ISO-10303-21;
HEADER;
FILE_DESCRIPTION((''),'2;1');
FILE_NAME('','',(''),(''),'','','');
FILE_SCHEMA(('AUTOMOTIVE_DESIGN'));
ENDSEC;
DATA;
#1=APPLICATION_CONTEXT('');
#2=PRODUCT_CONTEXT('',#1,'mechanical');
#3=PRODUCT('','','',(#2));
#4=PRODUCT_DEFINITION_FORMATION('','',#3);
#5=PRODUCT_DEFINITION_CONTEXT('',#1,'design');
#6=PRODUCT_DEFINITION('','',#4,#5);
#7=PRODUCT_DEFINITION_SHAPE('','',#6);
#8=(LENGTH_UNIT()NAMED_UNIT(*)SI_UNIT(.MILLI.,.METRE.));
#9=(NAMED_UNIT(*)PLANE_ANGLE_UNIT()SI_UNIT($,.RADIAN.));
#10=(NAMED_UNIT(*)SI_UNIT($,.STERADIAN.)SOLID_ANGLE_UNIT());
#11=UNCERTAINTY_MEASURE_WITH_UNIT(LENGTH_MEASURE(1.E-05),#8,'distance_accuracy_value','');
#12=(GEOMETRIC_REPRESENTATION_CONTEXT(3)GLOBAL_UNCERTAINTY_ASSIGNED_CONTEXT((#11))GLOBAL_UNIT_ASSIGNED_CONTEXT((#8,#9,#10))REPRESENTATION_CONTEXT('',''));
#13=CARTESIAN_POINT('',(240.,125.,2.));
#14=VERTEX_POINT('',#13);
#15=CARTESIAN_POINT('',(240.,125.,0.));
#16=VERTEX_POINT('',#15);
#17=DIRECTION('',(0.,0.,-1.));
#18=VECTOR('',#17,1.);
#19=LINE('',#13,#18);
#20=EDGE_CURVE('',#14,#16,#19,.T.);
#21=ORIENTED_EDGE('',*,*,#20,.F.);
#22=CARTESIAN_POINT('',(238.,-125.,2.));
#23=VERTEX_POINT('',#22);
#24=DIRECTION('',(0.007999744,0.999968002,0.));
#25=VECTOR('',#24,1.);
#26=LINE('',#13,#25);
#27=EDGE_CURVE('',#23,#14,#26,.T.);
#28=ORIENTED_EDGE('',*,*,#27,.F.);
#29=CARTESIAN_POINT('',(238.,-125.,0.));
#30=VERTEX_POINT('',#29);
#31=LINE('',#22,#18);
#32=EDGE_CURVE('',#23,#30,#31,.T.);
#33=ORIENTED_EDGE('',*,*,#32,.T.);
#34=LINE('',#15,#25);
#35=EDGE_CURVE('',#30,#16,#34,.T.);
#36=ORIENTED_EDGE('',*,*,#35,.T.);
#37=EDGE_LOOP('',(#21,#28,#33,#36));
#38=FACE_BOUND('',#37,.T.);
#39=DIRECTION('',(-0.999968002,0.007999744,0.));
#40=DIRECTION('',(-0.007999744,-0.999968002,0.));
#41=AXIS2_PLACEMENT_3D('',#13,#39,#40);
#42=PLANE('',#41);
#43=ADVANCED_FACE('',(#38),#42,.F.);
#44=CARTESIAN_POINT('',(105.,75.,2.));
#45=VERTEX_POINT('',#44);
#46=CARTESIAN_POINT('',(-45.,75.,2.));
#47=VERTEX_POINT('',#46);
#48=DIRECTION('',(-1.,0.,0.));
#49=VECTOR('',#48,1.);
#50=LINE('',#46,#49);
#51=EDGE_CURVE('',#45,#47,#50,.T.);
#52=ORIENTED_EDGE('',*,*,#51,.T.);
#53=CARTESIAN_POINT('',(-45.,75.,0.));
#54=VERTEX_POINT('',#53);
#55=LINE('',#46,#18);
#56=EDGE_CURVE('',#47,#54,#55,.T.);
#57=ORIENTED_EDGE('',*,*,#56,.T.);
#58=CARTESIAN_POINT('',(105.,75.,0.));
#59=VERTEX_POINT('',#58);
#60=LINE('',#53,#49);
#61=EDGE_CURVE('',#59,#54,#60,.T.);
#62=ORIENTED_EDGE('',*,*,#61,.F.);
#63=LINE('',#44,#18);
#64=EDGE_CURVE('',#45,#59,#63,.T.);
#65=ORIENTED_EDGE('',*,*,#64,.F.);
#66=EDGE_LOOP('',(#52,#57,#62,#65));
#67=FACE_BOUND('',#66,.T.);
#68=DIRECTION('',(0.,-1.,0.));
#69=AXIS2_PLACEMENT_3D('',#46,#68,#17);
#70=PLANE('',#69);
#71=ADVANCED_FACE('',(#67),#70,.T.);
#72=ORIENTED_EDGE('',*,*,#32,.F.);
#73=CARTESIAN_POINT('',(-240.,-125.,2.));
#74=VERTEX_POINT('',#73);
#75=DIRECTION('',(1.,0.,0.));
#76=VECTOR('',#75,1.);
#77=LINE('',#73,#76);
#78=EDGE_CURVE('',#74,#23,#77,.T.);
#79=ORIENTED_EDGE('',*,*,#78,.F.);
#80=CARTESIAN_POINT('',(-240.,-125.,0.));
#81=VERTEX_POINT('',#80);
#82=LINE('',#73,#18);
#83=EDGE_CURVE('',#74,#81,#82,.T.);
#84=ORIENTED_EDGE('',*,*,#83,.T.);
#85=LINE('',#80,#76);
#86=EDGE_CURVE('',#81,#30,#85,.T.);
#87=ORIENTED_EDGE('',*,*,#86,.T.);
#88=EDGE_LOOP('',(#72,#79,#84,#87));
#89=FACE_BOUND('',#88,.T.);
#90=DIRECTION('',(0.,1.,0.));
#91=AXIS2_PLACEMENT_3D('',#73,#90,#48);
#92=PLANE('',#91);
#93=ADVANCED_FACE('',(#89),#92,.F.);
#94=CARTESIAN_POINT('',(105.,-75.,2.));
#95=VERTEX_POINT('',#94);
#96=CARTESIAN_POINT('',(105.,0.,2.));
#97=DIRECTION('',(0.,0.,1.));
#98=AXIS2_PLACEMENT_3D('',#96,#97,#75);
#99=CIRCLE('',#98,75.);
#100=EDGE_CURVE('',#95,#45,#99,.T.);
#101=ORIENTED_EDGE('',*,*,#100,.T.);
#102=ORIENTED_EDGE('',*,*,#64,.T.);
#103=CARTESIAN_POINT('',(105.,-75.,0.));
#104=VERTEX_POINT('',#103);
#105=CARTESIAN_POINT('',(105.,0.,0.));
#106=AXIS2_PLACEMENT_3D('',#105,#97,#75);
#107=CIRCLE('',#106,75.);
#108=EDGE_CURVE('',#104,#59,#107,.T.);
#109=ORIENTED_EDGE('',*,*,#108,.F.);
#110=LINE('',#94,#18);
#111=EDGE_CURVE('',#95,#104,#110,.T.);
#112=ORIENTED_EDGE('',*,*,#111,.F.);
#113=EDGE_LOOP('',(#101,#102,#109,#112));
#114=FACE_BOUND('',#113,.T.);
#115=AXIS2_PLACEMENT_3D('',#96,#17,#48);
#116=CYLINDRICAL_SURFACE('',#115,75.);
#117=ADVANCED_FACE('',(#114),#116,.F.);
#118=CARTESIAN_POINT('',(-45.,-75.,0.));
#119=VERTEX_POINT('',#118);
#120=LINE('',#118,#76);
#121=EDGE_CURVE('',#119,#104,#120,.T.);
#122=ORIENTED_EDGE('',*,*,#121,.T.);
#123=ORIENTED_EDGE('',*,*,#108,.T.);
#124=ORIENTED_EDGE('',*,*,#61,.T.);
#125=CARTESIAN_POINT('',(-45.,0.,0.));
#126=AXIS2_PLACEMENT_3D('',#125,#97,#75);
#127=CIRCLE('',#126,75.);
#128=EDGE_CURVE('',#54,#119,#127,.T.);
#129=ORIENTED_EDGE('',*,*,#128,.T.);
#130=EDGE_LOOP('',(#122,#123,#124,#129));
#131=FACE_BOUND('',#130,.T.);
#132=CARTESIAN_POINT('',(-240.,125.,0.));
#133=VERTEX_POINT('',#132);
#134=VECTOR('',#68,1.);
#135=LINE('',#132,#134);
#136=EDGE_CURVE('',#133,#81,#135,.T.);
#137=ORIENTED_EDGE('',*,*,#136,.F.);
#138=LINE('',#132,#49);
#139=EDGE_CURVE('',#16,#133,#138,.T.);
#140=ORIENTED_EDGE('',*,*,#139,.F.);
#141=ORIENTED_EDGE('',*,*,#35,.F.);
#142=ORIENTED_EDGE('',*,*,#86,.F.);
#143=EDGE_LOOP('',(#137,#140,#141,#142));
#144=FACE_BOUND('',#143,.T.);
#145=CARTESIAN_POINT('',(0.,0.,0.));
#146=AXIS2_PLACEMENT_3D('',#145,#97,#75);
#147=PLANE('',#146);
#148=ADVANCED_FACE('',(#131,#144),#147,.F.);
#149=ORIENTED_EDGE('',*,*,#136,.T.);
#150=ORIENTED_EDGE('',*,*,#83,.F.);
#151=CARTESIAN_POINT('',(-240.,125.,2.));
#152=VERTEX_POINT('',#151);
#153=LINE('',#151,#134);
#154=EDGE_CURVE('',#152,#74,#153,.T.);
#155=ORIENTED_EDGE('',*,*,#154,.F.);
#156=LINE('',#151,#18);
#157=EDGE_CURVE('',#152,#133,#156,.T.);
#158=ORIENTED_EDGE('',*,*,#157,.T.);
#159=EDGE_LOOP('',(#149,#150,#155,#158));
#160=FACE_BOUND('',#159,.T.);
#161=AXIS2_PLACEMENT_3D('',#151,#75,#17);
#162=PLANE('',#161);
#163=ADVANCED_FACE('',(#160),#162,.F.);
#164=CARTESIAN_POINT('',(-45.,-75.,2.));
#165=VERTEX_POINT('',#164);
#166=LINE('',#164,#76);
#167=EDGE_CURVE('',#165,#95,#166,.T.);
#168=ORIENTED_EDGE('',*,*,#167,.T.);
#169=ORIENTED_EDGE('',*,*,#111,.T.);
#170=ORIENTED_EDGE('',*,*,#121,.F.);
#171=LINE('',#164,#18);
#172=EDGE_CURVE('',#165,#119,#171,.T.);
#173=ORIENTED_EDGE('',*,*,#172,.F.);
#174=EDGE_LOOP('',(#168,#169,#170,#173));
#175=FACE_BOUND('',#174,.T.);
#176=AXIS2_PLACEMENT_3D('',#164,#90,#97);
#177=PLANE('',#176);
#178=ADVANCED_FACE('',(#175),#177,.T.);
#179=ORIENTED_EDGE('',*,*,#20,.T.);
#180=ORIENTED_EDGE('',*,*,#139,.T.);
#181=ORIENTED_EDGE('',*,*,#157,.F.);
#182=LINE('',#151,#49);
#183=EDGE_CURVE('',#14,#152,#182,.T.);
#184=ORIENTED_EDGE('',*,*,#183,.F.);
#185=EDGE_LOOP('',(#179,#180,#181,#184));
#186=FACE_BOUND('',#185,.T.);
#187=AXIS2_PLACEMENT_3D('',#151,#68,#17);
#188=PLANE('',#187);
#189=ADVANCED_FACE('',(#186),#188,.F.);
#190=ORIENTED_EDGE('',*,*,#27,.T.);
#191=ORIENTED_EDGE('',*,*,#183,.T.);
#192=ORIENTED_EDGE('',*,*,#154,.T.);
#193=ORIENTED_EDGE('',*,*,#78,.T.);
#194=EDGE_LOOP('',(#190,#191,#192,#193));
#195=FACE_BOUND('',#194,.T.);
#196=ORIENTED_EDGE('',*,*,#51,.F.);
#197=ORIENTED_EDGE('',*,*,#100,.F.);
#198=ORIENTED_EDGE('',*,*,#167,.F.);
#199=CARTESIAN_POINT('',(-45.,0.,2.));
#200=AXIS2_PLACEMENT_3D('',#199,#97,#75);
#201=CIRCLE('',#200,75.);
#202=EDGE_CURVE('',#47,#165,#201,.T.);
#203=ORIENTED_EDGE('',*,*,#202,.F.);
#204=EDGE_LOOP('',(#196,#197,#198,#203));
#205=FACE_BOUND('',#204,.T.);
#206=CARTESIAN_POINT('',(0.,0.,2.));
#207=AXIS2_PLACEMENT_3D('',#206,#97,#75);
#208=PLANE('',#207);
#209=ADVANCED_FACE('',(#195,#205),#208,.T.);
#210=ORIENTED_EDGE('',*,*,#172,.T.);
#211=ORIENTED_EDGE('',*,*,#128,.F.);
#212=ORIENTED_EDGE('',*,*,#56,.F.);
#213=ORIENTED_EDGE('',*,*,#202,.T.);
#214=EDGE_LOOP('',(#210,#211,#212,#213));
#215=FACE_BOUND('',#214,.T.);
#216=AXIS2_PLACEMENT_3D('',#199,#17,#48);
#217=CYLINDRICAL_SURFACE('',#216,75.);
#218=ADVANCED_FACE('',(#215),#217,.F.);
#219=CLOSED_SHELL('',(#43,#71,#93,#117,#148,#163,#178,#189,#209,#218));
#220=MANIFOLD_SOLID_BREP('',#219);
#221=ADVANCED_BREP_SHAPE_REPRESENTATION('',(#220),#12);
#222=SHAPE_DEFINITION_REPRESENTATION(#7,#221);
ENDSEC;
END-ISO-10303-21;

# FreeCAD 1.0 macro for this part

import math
import FreeCAD as App
import Part
import Sketcher

V = App.Vector


def add_polygon(sketch, points):
    """Adds a closed chain of lines whose ends are joined by coincident constraints."""
    first, n = sketch.GeometryCount, len(points)
    for a, b in zip(points, points[1:] + points[:1]):
        sketch.addGeometry(Part.LineSegment(App.Vector(*a, 0), App.Vector(*b, 0)), False)
    for i in range(n):
        sketch.addConstraint(Sketcher.Constraint("Coincident", first + i, 2, first + (i + 1) % n, 1))

doc = App.newDocument("Part")
body = doc.addObject("PartDesign::Body", "Body")

# Sketch on XY plane
sketch1 = body.newObject("Sketcher::SketchObject", "Sketch")
sketch1.AttachmentSupport = (doc.getObject("XY_Plane"), [""])
sketch1.MapMode = "FlatFace"
add_polygon(sketch1, [(240, 125), (-240, 125), (-240, -125), (238, -125)])  # lines 0-3
sketch1.addGeometry(Part.LineSegment(V(-45, 75, 0), V(105, 75, 0)), False)  # 4
sketch1.addGeometry(Part.ArcOfCircle(Part.Circle(V(105, 0, 0), V(0, 0, 1), 75), math.radians(-90), math.radians(90)), False)  # 5
sketch1.addGeometry(Part.LineSegment(V(105, -75, 0), V(-45, -75, 0)), False)  # 6
sketch1.addGeometry(Part.ArcOfCircle(Part.Circle(V(-45, 0, 0), V(0, 0, 1), 75), math.radians(90), math.radians(270)), False)  # 7
sketch1.addConstraint([
    Sketcher.Constraint("Tangent", 4, 2, 5, 2),
    Sketcher.Constraint("Tangent", 5, 1, 6, 1),
    Sketcher.Constraint("Tangent", 6, 2, 7, 2),
    Sketcher.Constraint("Tangent", 7, 1, 4, 1),
    Sketcher.Constraint("Horizontal", 0),
    Sketcher.Constraint("Vertical", 1),
    Sketcher.Constraint("Horizontal", 2),
    Sketcher.Constraint("Horizontal", 4),
    Sketcher.Constraint("Horizontal", 6),
    Sketcher.Constraint("Symmetric", 1, 2, 3, 2, -1, 1),
    Sketcher.Constraint("PointOnObject", 5, 3, -1),
    Sketcher.Constraint("Radius", 5, 75.0),
    Sketcher.Constraint("DistanceX", 0, 2, 0, 1, 480.0),
    Sketcher.Constraint("DistanceX", 2, 1, 2, 2, 478.0),
    Sketcher.Constraint("DistanceX", 4, 1, 4, 2, 150.0),
    Sketcher.Constraint("DistanceY", 1, 2, 1, 1, 250.0),
    Sketcher.Constraint("DistanceX", -1, 1, 5, 3, 105.0),
])
pad1 = body.newObject("PartDesign::Pad", "Pad")
pad1.Profile = sketch1
pad1.Length = 2

doc.recompute()
